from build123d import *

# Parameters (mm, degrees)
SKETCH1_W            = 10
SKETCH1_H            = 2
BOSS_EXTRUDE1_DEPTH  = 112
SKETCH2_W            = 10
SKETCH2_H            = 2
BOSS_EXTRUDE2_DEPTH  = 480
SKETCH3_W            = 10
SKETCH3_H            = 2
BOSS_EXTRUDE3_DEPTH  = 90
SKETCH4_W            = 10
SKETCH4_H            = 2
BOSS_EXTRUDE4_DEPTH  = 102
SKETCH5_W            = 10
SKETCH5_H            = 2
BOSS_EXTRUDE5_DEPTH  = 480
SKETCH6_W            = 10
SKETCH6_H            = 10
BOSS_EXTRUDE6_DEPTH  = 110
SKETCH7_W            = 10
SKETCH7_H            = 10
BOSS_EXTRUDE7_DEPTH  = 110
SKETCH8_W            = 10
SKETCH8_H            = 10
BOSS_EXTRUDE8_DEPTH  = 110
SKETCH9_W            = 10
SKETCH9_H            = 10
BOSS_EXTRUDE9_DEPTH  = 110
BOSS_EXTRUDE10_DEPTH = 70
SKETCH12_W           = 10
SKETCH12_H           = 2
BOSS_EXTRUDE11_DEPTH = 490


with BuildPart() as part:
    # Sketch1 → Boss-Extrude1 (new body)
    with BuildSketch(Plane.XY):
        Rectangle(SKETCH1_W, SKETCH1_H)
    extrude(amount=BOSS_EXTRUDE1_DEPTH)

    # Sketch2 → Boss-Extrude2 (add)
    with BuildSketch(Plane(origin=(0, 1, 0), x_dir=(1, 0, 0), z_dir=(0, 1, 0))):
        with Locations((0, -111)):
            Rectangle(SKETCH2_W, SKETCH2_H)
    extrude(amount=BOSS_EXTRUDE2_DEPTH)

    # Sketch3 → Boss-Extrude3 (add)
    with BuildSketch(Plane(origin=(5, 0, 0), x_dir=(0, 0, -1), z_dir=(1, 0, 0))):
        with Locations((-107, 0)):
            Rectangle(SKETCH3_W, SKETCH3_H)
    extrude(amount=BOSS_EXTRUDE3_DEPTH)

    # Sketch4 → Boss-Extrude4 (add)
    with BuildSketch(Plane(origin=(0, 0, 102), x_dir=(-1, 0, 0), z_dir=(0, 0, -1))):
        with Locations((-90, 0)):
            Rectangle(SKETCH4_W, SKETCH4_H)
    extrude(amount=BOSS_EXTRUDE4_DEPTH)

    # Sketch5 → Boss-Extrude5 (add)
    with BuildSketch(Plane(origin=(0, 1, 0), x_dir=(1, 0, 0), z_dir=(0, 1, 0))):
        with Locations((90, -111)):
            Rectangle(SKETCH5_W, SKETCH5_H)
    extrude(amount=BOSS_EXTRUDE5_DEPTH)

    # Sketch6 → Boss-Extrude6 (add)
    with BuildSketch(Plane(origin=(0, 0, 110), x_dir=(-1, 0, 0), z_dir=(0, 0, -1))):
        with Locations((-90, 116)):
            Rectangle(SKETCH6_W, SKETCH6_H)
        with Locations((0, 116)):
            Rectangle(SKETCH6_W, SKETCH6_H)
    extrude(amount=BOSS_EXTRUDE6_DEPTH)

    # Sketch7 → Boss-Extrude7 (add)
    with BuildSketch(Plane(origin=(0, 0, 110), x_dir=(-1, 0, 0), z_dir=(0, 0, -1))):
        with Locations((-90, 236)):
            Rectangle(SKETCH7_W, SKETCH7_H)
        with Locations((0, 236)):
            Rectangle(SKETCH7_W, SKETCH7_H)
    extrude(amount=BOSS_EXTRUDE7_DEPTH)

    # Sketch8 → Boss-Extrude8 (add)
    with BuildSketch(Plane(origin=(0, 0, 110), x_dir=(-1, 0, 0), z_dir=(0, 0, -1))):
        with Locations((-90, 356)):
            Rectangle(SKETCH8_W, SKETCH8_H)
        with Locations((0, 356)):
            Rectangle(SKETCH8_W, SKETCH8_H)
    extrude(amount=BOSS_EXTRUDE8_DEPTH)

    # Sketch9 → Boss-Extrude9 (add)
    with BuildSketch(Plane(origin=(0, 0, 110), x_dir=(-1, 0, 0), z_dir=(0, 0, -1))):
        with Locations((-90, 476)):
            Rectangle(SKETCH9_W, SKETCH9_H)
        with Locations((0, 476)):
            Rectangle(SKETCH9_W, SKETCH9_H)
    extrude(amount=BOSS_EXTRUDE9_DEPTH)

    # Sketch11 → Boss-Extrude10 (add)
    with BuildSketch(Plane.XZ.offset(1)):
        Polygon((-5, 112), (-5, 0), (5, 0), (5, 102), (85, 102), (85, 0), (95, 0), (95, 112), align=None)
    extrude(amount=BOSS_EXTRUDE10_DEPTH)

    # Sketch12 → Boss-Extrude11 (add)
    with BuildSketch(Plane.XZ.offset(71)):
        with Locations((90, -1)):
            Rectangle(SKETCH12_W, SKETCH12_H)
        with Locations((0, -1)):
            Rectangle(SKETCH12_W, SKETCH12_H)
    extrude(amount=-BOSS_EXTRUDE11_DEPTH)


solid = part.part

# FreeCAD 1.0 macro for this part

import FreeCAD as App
import Part
import Sketcher

V = App.Vector

doc = App.newDocument("Part")
params = doc.addObject("Spreadsheet::Sheet", "Params")
for row, (alias, value) in enumerate([
    ("sketch1_width", "10 mm"),
    ("sketch1_height", "2 mm"),
    ("pad1_length", "112 mm"),
    ("sketch2_width", "10 mm"),
    ("sketch2_height", "2 mm"),
    ("pad2_length", "480 mm"),
    ("sketch3_width", "2 mm"),
    ("sketch3_height", "10 mm"),
    ("pad3_length", "90 mm"),
    ("sketch4_width", "10 mm"),
    ("sketch4_height", "2 mm"),
    ("pad4_length", "102 mm"),
    ("sketch5_width", "10 mm"),
    ("sketch5_height", "2 mm"),
    ("pad5_length", "480 mm"),
    ("sketch6_width", "10 mm"),
    ("pad6_length", "110 mm"),
    ("sketch7_width", "10 mm"),
    ("pad7_length", "110 mm"),
    ("sketch8_width", "10 mm"),
    ("pad8_length", "110 mm"),
    ("sketch9_width", "10 mm"),
    ("pad9_length", "110 mm"),
    ("sketch10_width", "10 mm"),
    ("sketch10_width2", "80 mm"),
    ("sketch10_height", "112 mm"),
    ("sketch10_height2", "102 mm"),
    ("pad10_length", "70 mm"),
    ("sketch11_width", "10 mm"),
    ("sketch11_height", "2 mm"),
    ("pad11_length", "490 mm"),
], start=1):
    params.set(f"A{row}", alias)
    params.set(f"B{row}", "=" + value)
    params.setAlias(f"B{row}", alias)

body = doc.addObject("PartDesign::Body", "Body")

# Sketch on XY plane
sketch1 = doc.addObject("Sketcher::SketchObject", "Sketch")
body.addObject(sketch1)
sketch1.AttachmentSupport = (doc.XY_Plane, [""])
sketch1.MapMode = "FlatFace"
sketch1.addGeometry(Part.LineSegment(V(-5, 1, 0), V(-5, -1, 0)), False)
sketch1.addGeometry(Part.LineSegment(V(-5, -1, 0), V(5, -1, 0)), False)
sketch1.addGeometry(Part.LineSegment(V(5, -1, 0), V(5, 1, 0)), False)
sketch1.addGeometry(Part.LineSegment(V(5, 1, 0), V(-5, 1, 0)), False)
sketch1.addConstraint(Sketcher.Constraint("Coincident", 0, 2, 1, 1))
sketch1.addConstraint(Sketcher.Constraint("Coincident", 1, 2, 2, 1))
sketch1.addConstraint(Sketcher.Constraint("Coincident", 2, 2, 3, 1))
sketch1.addConstraint(Sketcher.Constraint("Coincident", 3, 2, 0, 1))
sketch1.addConstraint(Sketcher.Constraint("Vertical", 0))
sketch1.addConstraint(Sketcher.Constraint("Horizontal", 1))
sketch1.addConstraint(Sketcher.Constraint("Vertical", 2))
sketch1.addConstraint(Sketcher.Constraint("Horizontal", 3))
sketch1.addConstraint(Sketcher.Constraint("Symmetric", 0, 2, 2, 2, -1, 1))
sketch1.addConstraint(Sketcher.Constraint("DistanceX", 1, 1, 1, 2, 10.0))
sketch1.addConstraint(Sketcher.Constraint("DistanceY", 0, 2, 0, 1, 2.0))
sketch1.setExpression("Constraints[9]", "Params.sketch1_width")
sketch1.setExpression("Constraints[10]", "Params.sketch1_height")
pad1 = doc.addObject("PartDesign::Pad", "Pad")
body.addObject(pad1)
pad1.Profile = sketch1
pad1.setExpression("Length", "Params.pad1_length")

# Sketch on XZ plane
sketch2 = doc.addObject("Sketcher::SketchObject", "Sketch001")
body.addObject(sketch2)
sketch2.AttachmentSupport = (doc.XZ_Plane, [""])
sketch2.MapMode = "FlatFace"
sketch2.AttachmentOffset = App.Placement(V(0, 0, -1), App.Rotation())
sketch2.addGeometry(Part.LineSegment(V(-5, 110, 0), V(-5, 112, 0)), False)
sketch2.addGeometry(Part.LineSegment(V(-5, 112, 0), V(5, 112, 0)), False)
sketch2.addGeometry(Part.LineSegment(V(5, 112, 0), V(5, 110, 0)), False)
sketch2.addGeometry(Part.LineSegment(V(5, 110, 0), V(-5, 110, 0)), False)
sketch2.addConstraint(Sketcher.Constraint("Coincident", 0, 2, 1, 1))
sketch2.addConstraint(Sketcher.Constraint("Coincident", 1, 2, 2, 1))
sketch2.addConstraint(Sketcher.Constraint("Coincident", 2, 2, 3, 1))
sketch2.addConstraint(Sketcher.Constraint("Coincident", 3, 2, 0, 1))
sketch2.addConstraint(Sketcher.Constraint("Vertical", 0))
sketch2.addConstraint(Sketcher.Constraint("Horizontal", 1))
sketch2.addConstraint(Sketcher.Constraint("Vertical", 2))
sketch2.addConstraint(Sketcher.Constraint("Horizontal", 3))
sketch2.addConstraint(Sketcher.Constraint("DistanceX", 1, 1, 1, 2, 10.0))
sketch2.addConstraint(Sketcher.Constraint("DistanceY", 0, 1, 0, 2, 2.0))
sketch2.addConstraint(Sketcher.Constraint("DistanceX", 0, 2, -1, 1, 5.0))
sketch2.addConstraint(Sketcher.Constraint("DistanceY", -1, 1, 0, 2, 112.0))
sketch2.setExpression("Constraints[8]", "Params.sketch2_width")
sketch2.setExpression("Constraints[9]", "Params.sketch2_height")
pad2 = doc.addObject("PartDesign::Pad", "Pad001")
body.addObject(pad2)
pad2.Profile = sketch2
pad2.setExpression("Length", "Params.pad2_length")
pad2.Reversed = True

# Sketch on YZ plane
sketch3 = doc.addObject("Sketcher::SketchObject", "Sketch002")
body.addObject(sketch3)
sketch3.AttachmentSupport = (doc.YZ_Plane, [""])
sketch3.MapMode = "FlatFace"
sketch3.AttachmentOffset = App.Placement(V(0, 0, 5), App.Rotation())
sketch3.addGeometry(Part.LineSegment(V(1, 112, 0), V(-1, 112, 0)), False)
sketch3.addGeometry(Part.LineSegment(V(-1, 112, 0), V(-1, 102, 0)), False)
sketch3.addGeometry(Part.LineSegment(V(-1, 102, 0), V(1, 102, 0)), False)
sketch3.addGeometry(Part.LineSegment(V(1, 102, 0), V(1, 112, 0)), False)
sketch3.addConstraint(Sketcher.Constraint("Coincident", 0, 2, 1, 1))
sketch3.addConstraint(Sketcher.Constraint("Coincident", 1, 2, 2, 1))
sketch3.addConstraint(Sketcher.Constraint("Coincident", 2, 2, 3, 1))
sketch3.addConstraint(Sketcher.Constraint("Coincident", 3, 2, 0, 1))
sketch3.addConstraint(Sketcher.Constraint("Horizontal", 0))
sketch3.addConstraint(Sketcher.Constraint("Vertical", 1))
sketch3.addConstraint(Sketcher.Constraint("Horizontal", 2))
sketch3.addConstraint(Sketcher.Constraint("Vertical", 3))
sketch3.addConstraint(Sketcher.Constraint("DistanceX", 0, 2, 0, 1, 2.0))
sketch3.addConstraint(Sketcher.Constraint("DistanceY", 1, 2, 1, 1, 10.0))
sketch3.addConstraint(Sketcher.Constraint("DistanceX", 0, 2, -1, 1, 1.0))
sketch3.addConstraint(Sketcher.Constraint("DistanceY", -1, 1, 0, 2, 112.0))
sketch3.setExpression("Constraints[8]", "Params.sketch3_width")
sketch3.setExpression("Constraints[9]", "Params.sketch3_height")
pad3 = doc.addObject("PartDesign::Pad", "Pad002")
body.addObject(pad3)
pad3.Profile = sketch3
pad3.setExpression("Length", "Params.pad3_length")

# Sketch on XY plane
sketch4 = doc.addObject("Sketcher::SketchObject", "Sketch003")
body.addObject(sketch4)
sketch4.AttachmentSupport = (doc.XY_Plane, [""])
sketch4.MapMode = "FlatFace"
sketch4.AttachmentOffset = App.Placement(V(0, 0, 102), App.Rotation())
sketch4.addGeometry(Part.LineSegment(V(95, 1, 0), V(95, -1, 0)), False)
sketch4.addGeometry(Part.LineSegment(V(95, -1, 0), V(85, -1, 0)), False)
sketch4.addGeometry(Part.LineSegment(V(85, -1, 0), V(85, 1, 0)), False)
sketch4.addGeometry(Part.LineSegment(V(85, 1, 0), V(95, 1, 0)), False)
sketch4.addConstraint(Sketcher.Constraint("Coincident", 0, 2, 1, 1))
sketch4.addConstraint(Sketcher.Constraint("Coincident", 1, 2, 2, 1))
sketch4.addConstraint(Sketcher.Constraint("Coincident", 2, 2, 3, 1))
sketch4.addConstraint(Sketcher.Constraint("Coincident", 3, 2, 0, 1))
sketch4.addConstraint(Sketcher.Constraint("Vertical", 0))
sketch4.addConstraint(Sketcher.Constraint("Horizontal", 1))
sketch4.addConstraint(Sketcher.Constraint("Vertical", 2))
sketch4.addConstraint(Sketcher.Constraint("Horizontal", 3))
sketch4.addConstraint(Sketcher.Constraint("DistanceX", 1, 2, 1, 1, 10.0))
sketch4.addConstraint(Sketcher.Constraint("DistanceY", 0, 2, 0, 1, 2.0))
sketch4.addConstraint(Sketcher.Constraint("DistanceX", -1, 1, 0, 2, 95.0))
sketch4.addConstraint(Sketcher.Constraint("DistanceY", 0, 2, -1, 1, 1.0))
sketch4.setExpression("Constraints[8]", "Params.sketch4_width")
sketch4.setExpression("Constraints[9]", "Params.sketch4_height")
pad4 = doc.addObject("PartDesign::Pad", "Pad003")
body.addObject(pad4)
pad4.Profile = sketch4
pad4.setExpression("Length", "Params.pad4_length")
pad4.Reversed = True

# Sketch on XZ plane
sketch5 = doc.addObject("Sketcher::SketchObject", "Sketch004")
body.addObject(sketch5)
sketch5.AttachmentSupport = (doc.XZ_Plane, [""])
sketch5.MapMode = "FlatFace"
sketch5.AttachmentOffset = App.Placement(V(0, 0, -1), App.Rotation())
sketch5.addGeometry(Part.LineSegment(V(85, 110, 0), V(85, 112, 0)), False)
sketch5.addGeometry(Part.LineSegment(V(85, 112, 0), V(95, 112, 0)), False)
sketch5.addGeometry(Part.LineSegment(V(95, 112, 0), V(95, 110, 0)), False)
sketch5.addGeometry(Part.LineSegment(V(95, 110, 0), V(85, 110, 0)), False)
sketch5.addConstraint(Sketcher.Constraint("Coincident", 0, 2, 1, 1))
sketch5.addConstraint(Sketcher.Constraint("Coincident", 1, 2, 2, 1))
sketch5.addConstraint(Sketcher.Constraint("Coincident", 2, 2, 3, 1))
sketch5.addConstraint(Sketcher.Constraint("Coincident", 3, 2, 0, 1))
sketch5.addConstraint(Sketcher.Constraint("Vertical", 0))
sketch5.addConstraint(Sketcher.Constraint("Horizontal", 1))
sketch5.addConstraint(Sketcher.Constraint("Vertical", 2))
sketch5.addConstraint(Sketcher.Constraint("Horizontal", 3))
sketch5.addConstraint(Sketcher.Constraint("DistanceX", 1, 1, 1, 2, 10.0))
sketch5.addConstraint(Sketcher.Constraint("DistanceY", 0, 1, 0, 2, 2.0))
sketch5.addConstraint(Sketcher.Constraint("DistanceX", -1, 1, 0, 2, 85.0))
sketch5.addConstraint(Sketcher.Constraint("DistanceY", -1, 1, 0, 2, 112.0))
sketch5.setExpression("Constraints[8]", "Params.sketch5_width")
sketch5.setExpression("Constraints[9]", "Params.sketch5_height")
pad5 = doc.addObject("PartDesign::Pad", "Pad004")
body.addObject(pad5)
pad5.Profile = sketch5
pad5.setExpression("Length", "Params.pad5_length")
pad5.Reversed = True

# Sketch on XY plane
sketch6 = doc.addObject("Sketcher::SketchObject", "Sketch005")
body.addObject(sketch6)
sketch6.AttachmentSupport = (doc.XY_Plane, [""])
sketch6.MapMode = "FlatFace"
sketch6.AttachmentOffset = App.Placement(V(0, 0, 110), App.Rotation())
sketch6.addGeometry(Part.LineSegment(V(95, 121, 0), V(95, 111, 0)), False)
sketch6.addGeometry(Part.LineSegment(V(95, 111, 0), V(85, 111, 0)), False)
sketch6.addGeometry(Part.LineSegment(V(85, 111, 0), V(85, 121, 0)), False)
sketch6.addGeometry(Part.LineSegment(V(85, 121, 0), V(95, 121, 0)), False)
sketch6.addGeometry(Part.LineSegment(V(5, 121, 0), V(5, 111, 0)), False)
sketch6.addGeometry(Part.LineSegment(V(5, 111, 0), V(-5, 111, 0)), False)
sketch6.addGeometry(Part.LineSegment(V(-5, 111, 0), V(-5, 121, 0)), False)
sketch6.addGeometry(Part.LineSegment(V(-5, 121, 0), V(5, 121, 0)), False)
sketch6.addConstraint(Sketcher.Constraint("Coincident", 0, 2, 1, 1))
sketch6.addConstraint(Sketcher.Constraint("Coincident", 1, 2, 2, 1))
sketch6.addConstraint(Sketcher.Constraint("Coincident", 2, 2, 3, 1))
sketch6.addConstraint(Sketcher.Constraint("Coincident", 3, 2, 0, 1))
sketch6.addConstraint(Sketcher.Constraint("Coincident", 4, 2, 5, 1))
sketch6.addConstraint(Sketcher.Constraint("Coincident", 5, 2, 6, 1))
sketch6.addConstraint(Sketcher.Constraint("Coincident", 6, 2, 7, 1))
sketch6.addConstraint(Sketcher.Constraint("Coincident", 7, 2, 4, 1))
sketch6.addConstraint(Sketcher.Constraint("Vertical", 0))
sketch6.addConstraint(Sketcher.Constraint("Horizontal", 1))
sketch6.addConstraint(Sketcher.Constraint("Vertical", 2))
sketch6.addConstraint(Sketcher.Constraint("Horizontal", 3))
sketch6.addConstraint(Sketcher.Constraint("Vertical", 4))
sketch6.addConstraint(Sketcher.Constraint("Horizontal", 5))
sketch6.addConstraint(Sketcher.Constraint("Vertical", 6))
sketch6.addConstraint(Sketcher.Constraint("Horizontal", 7))
sketch6.addConstraint(Sketcher.Constraint("Horizontal", 1, 2, 4, 2))
sketch6.addConstraint(Sketcher.Constraint("Horizontal", 3, 2, 6, 2))
sketch6.addConstraint(Sketcher.Constraint("Equal", 3, 5))
sketch6.addConstraint(Sketcher.Constraint("Equal", 7, 0))
sketch6.addConstraint(Sketcher.Constraint("DistanceX", 1, 2, 1, 1, 10.0))
sketch6.addConstraint(Sketcher.Constraint("DistanceX", -1, 1, 0, 2, 95.0))
sketch6.addConstraint(Sketcher.Constraint("DistanceY", -1, 1, 0, 2, 111.0))
sketch6.addConstraint(Sketcher.Constraint("DistanceX", -1, 1, 4, 2, 5.0))
sketch6.setExpression("Constraints[20]", "Params.sketch6_width")
pad6 = doc.addObject("PartDesign::Pad", "Pad005")
body.addObject(pad6)
pad6.Profile = sketch6
pad6.setExpression("Length", "Params.pad6_length")
pad6.Reversed = True

# Sketch on XY plane
sketch7 = doc.addObject("Sketcher::SketchObject", "Sketch006")
body.addObject(sketch7)
sketch7.AttachmentSupport = (doc.XY_Plane, [""])
sketch7.MapMode = "FlatFace"
sketch7.AttachmentOffset = App.Placement(V(0, 0, 110), App.Rotation())
sketch7.addGeometry(Part.LineSegment(V(95, 241, 0), V(95, 231, 0)), False)
sketch7.addGeometry(Part.LineSegment(V(95, 231, 0), V(85, 231, 0)), False)
sketch7.addGeometry(Part.LineSegment(V(85, 231, 0), V(85, 241, 0)), False)
sketch7.addGeometry(Part.LineSegment(V(85, 241, 0), V(95, 241, 0)), False)
sketch7.addGeometry(Part.LineSegment(V(5, 241, 0), V(5, 231, 0)), False)
sketch7.addGeometry(Part.LineSegment(V(5, 231, 0), V(-5, 231, 0)), False)
sketch7.addGeometry(Part.LineSegment(V(-5, 231, 0), V(-5, 241, 0)), False)
sketch7.addGeometry(Part.LineSegment(V(-5, 241, 0), V(5, 241, 0)), False)
sketch7.addConstraint(Sketcher.Constraint("Coincident", 0, 2, 1, 1))
sketch7.addConstraint(Sketcher.Constraint("Coincident", 1, 2, 2, 1))
sketch7.addConstraint(Sketcher.Constraint("Coincident", 2, 2, 3, 1))
sketch7.addConstraint(Sketcher.Constraint("Coincident", 3, 2, 0, 1))
sketch7.addConstraint(Sketcher.Constraint("Coincident", 4, 2, 5, 1))
sketch7.addConstraint(Sketcher.Constraint("Coincident", 5, 2, 6, 1))
sketch7.addConstraint(Sketcher.Constraint("Coincident", 6, 2, 7, 1))
sketch7.addConstraint(Sketcher.Constraint("Coincident", 7, 2, 4, 1))
sketch7.addConstraint(Sketcher.Constraint("Vertical", 0))
sketch7.addConstraint(Sketcher.Constraint("Horizontal", 1))
sketch7.addConstraint(Sketcher.Constraint("Vertical", 2))
sketch7.addConstraint(Sketcher.Constraint("Horizontal", 3))
sketch7.addConstraint(Sketcher.Constraint("Vertical", 4))
sketch7.addConstraint(Sketcher.Constraint("Horizontal", 5))
sketch7.addConstraint(Sketcher.Constraint("Vertical", 6))
sketch7.addConstraint(Sketcher.Constraint("Horizontal", 7))
sketch7.addConstraint(Sketcher.Constraint("Horizontal", 1, 2, 4, 2))
sketch7.addConstraint(Sketcher.Constraint("Horizontal", 3, 2, 6, 2))
sketch7.addConstraint(Sketcher.Constraint("Equal", 3, 5))
sketch7.addConstraint(Sketcher.Constraint("Equal", 7, 0))
sketch7.addConstraint(Sketcher.Constraint("DistanceX", 1, 2, 1, 1, 10.0))
sketch7.addConstraint(Sketcher.Constraint("DistanceX", -1, 1, 0, 2, 95.0))
sketch7.addConstraint(Sketcher.Constraint("DistanceY", -1, 1, 0, 2, 231.0))
sketch7.addConstraint(Sketcher.Constraint("DistanceX", -1, 1, 4, 2, 5.0))
sketch7.setExpression("Constraints[20]", "Params.sketch7_width")
pad7 = doc.addObject("PartDesign::Pad", "Pad006")
body.addObject(pad7)
pad7.Profile = sketch7
pad7.setExpression("Length", "Params.pad7_length")
pad7.Reversed = True

# Sketch on XY plane
sketch8 = doc.addObject("Sketcher::SketchObject", "Sketch007")
body.addObject(sketch8)
sketch8.AttachmentSupport = (doc.XY_Plane, [""])
sketch8.MapMode = "FlatFace"
sketch8.AttachmentOffset = App.Placement(V(0, 0, 110), App.Rotation())
sketch8.addGeometry(Part.LineSegment(V(95, 361, 0), V(95, 351, 0)), False)
sketch8.addGeometry(Part.LineSegment(V(95, 351, 0), V(85, 351, 0)), False)
sketch8.addGeometry(Part.LineSegment(V(85, 351, 0), V(85, 361, 0)), False)
sketch8.addGeometry(Part.LineSegment(V(85, 361, 0), V(95, 361, 0)), False)
sketch8.addGeometry(Part.LineSegment(V(5, 361, 0), V(5, 351, 0)), False)
sketch8.addGeometry(Part.LineSegment(V(5, 351, 0), V(-5, 351, 0)), False)
sketch8.addGeometry(Part.LineSegment(V(-5, 351, 0), V(-5, 361, 0)), False)
sketch8.addGeometry(Part.LineSegment(V(-5, 361, 0), V(5, 361, 0)), False)
sketch8.addConstraint(Sketcher.Constraint("Coincident", 0, 2, 1, 1))
sketch8.addConstraint(Sketcher.Constraint("Coincident", 1, 2, 2, 1))
sketch8.addConstraint(Sketcher.Constraint("Coincident", 2, 2, 3, 1))
sketch8.addConstraint(Sketcher.Constraint("Coincident", 3, 2, 0, 1))
sketch8.addConstraint(Sketcher.Constraint("Coincident", 4, 2, 5, 1))
sketch8.addConstraint(Sketcher.Constraint("Coincident", 5, 2, 6, 1))
sketch8.addConstraint(Sketcher.Constraint("Coincident", 6, 2, 7, 1))
sketch8.addConstraint(Sketcher.Constraint("Coincident", 7, 2, 4, 1))
sketch8.addConstraint(Sketcher.Constraint("Vertical", 0))
sketch8.addConstraint(Sketcher.Constraint("Horizontal", 1))
sketch8.addConstraint(Sketcher.Constraint("Vertical", 2))
sketch8.addConstraint(Sketcher.Constraint("Horizontal", 3))
sketch8.addConstraint(Sketcher.Constraint("Vertical", 4))
sketch8.addConstraint(Sketcher.Constraint("Horizontal", 5))
sketch8.addConstraint(Sketcher.Constraint("Vertical", 6))
sketch8.addConstraint(Sketcher.Constraint("Horizontal", 7))
sketch8.addConstraint(Sketcher.Constraint("Horizontal", 1, 2, 4, 2))
sketch8.addConstraint(Sketcher.Constraint("Horizontal", 3, 2, 6, 2))
sketch8.addConstraint(Sketcher.Constraint("Equal", 3, 5))
sketch8.addConstraint(Sketcher.Constraint("Equal", 7, 0))
sketch8.addConstraint(Sketcher.Constraint("DistanceX", 1, 2, 1, 1, 10.0))
sketch8.addConstraint(Sketcher.Constraint("DistanceX", -1, 1, 0, 2, 95.0))
sketch8.addConstraint(Sketcher.Constraint("DistanceY", -1, 1, 0, 2, 351.0))
sketch8.addConstraint(Sketcher.Constraint("DistanceX", -1, 1, 4, 2, 5.0))
sketch8.setExpression("Constraints[20]", "Params.sketch8_width")
pad8 = doc.addObject("PartDesign::Pad", "Pad007")
body.addObject(pad8)
pad8.Profile = sketch8
pad8.setExpression("Length", "Params.pad8_length")
pad8.Reversed = True

# Sketch on XY plane
sketch9 = doc.addObject("Sketcher::SketchObject", "Sketch008")
body.addObject(sketch9)
sketch9.AttachmentSupport = (doc.XY_Plane, [""])
sketch9.MapMode = "FlatFace"
sketch9.AttachmentOffset = App.Placement(V(0, 0, 110), App.Rotation())
sketch9.addGeometry(Part.LineSegment(V(95, 481, 0), V(95, 471, 0)), False)
sketch9.addGeometry(Part.LineSegment(V(95, 471, 0), V(85, 471, 0)), False)
sketch9.addGeometry(Part.LineSegment(V(85, 471, 0), V(85, 481, 0)), False)
sketch9.addGeometry(Part.LineSegment(V(85, 481, 0), V(95, 481, 0)), False)
sketch9.addGeometry(Part.LineSegment(V(5, 481, 0), V(5, 471, 0)), False)
sketch9.addGeometry(Part.LineSegment(V(5, 471, 0), V(-5, 471, 0)), False)
sketch9.addGeometry(Part.LineSegment(V(-5, 471, 0), V(-5, 481, 0)), False)
sketch9.addGeometry(Part.LineSegment(V(-5, 481, 0), V(5, 481, 0)), False)
sketch9.addConstraint(Sketcher.Constraint("Coincident", 0, 2, 1, 1))
sketch9.addConstraint(Sketcher.Constraint("Coincident", 1, 2, 2, 1))
sketch9.addConstraint(Sketcher.Constraint("Coincident", 2, 2, 3, 1))
sketch9.addConstraint(Sketcher.Constraint("Coincident", 3, 2, 0, 1))
sketch9.addConstraint(Sketcher.Constraint("Coincident", 4, 2, 5, 1))
sketch9.addConstraint(Sketcher.Constraint("Coincident", 5, 2, 6, 1))
sketch9.addConstraint(Sketcher.Constraint("Coincident", 6, 2, 7, 1))
sketch9.addConstraint(Sketcher.Constraint("Coincident", 7, 2, 4, 1))
sketch9.addConstraint(Sketcher.Constraint("Vertical", 0))
sketch9.addConstraint(Sketcher.Constraint("Horizontal", 1))
sketch9.addConstraint(Sketcher.Constraint("Vertical", 2))
sketch9.addConstraint(Sketcher.Constraint("Horizontal", 3))
sketch9.addConstraint(Sketcher.Constraint("Vertical", 4))
sketch9.addConstraint(Sketcher.Constraint("Horizontal", 5))
sketch9.addConstraint(Sketcher.Constraint("Vertical", 6))
sketch9.addConstraint(Sketcher.Constraint("Horizontal", 7))
sketch9.addConstraint(Sketcher.Constraint("Horizontal", 1, 2, 4, 2))
sketch9.addConstraint(Sketcher.Constraint("Horizontal", 3, 2, 6, 2))
sketch9.addConstraint(Sketcher.Constraint("Equal", 3, 5))
sketch9.addConstraint(Sketcher.Constraint("Equal", 7, 0))
sketch9.addConstraint(Sketcher.Constraint("DistanceX", 1, 2, 1, 1, 10.0))
sketch9.addConstraint(Sketcher.Constraint("DistanceX", -1, 1, 0, 2, 95.0))
sketch9.addConstraint(Sketcher.Constraint("DistanceY", -1, 1, 0, 2, 471.0))
sketch9.addConstraint(Sketcher.Constraint("DistanceX", -1, 1, 4, 2, 5.0))
sketch9.setExpression("Constraints[20]", "Params.sketch9_width")
pad9 = doc.addObject("PartDesign::Pad", "Pad008")
body.addObject(pad9)
pad9.Profile = sketch9
pad9.setExpression("Length", "Params.pad9_length")
pad9.Reversed = True

# Sketch on XZ plane
sketch10 = doc.addObject("Sketcher::SketchObject", "Sketch009")
body.addObject(sketch10)
sketch10.AttachmentSupport = (doc.XZ_Plane, [""])
sketch10.MapMode = "FlatFace"
sketch10.AttachmentOffset = App.Placement(V(0, 0, 1), App.Rotation())
sketch10.addGeometry(Part.LineSegment(V(-5, 112, 0), V(-5, 0, 0)), False)
sketch10.addGeometry(Part.LineSegment(V(-5, 0, 0), V(5, 0, 0)), False)
sketch10.addGeometry(Part.LineSegment(V(5, 0, 0), V(5, 102, 0)), False)
sketch10.addGeometry(Part.LineSegment(V(5, 102, 0), V(85, 102, 0)), False)
sketch10.addGeometry(Part.LineSegment(V(85, 102, 0), V(85, 0, 0)), False)
sketch10.addGeometry(Part.LineSegment(V(85, 0, 0), V(95, 0, 0)), False)
sketch10.addGeometry(Part.LineSegment(V(95, 0, 0), V(95, 112, 0)), False)
sketch10.addGeometry(Part.LineSegment(V(95, 112, 0), V(-5, 112, 0)), False)
sketch10.addConstraint(Sketcher.Constraint("Coincident", 0, 2, 1, 1))
sketch10.addConstraint(Sketcher.Constraint("Coincident", 1, 2, 2, 1))
sketch10.addConstraint(Sketcher.Constraint("Coincident", 2, 2, 3, 1))
sketch10.addConstraint(Sketcher.Constraint("Coincident", 3, 2, 4, 1))
sketch10.addConstraint(Sketcher.Constraint("Coincident", 4, 2, 5, 1))
sketch10.addConstraint(Sketcher.Constraint("Coincident", 5, 2, 6, 1))
sketch10.addConstraint(Sketcher.Constraint("Coincident", 6, 2, 7, 1))
sketch10.addConstraint(Sketcher.Constraint("Coincident", 7, 2, 0, 1))
sketch10.addConstraint(Sketcher.Constraint("Vertical", 0))
sketch10.addConstraint(Sketcher.Constraint("Horizontal", 1))
sketch10.addConstraint(Sketcher.Constraint("Vertical", 2))
sketch10.addConstraint(Sketcher.Constraint("Horizontal", 3))
sketch10.addConstraint(Sketcher.Constraint("Vertical", 4))
sketch10.addConstraint(Sketcher.Constraint("Horizontal", 5))
sketch10.addConstraint(Sketcher.Constraint("Vertical", 6))
sketch10.addConstraint(Sketcher.Constraint("Horizontal", 7))
sketch10.addConstraint(Sketcher.Constraint("Symmetric", 0, 2, 1, 2, -1, 1))
sketch10.addConstraint(Sketcher.Constraint("PointOnObject", 4, 2, -1))
sketch10.addConstraint(Sketcher.Constraint("Equal", 1, 5))
sketch10.addConstraint(Sketcher.Constraint("DistanceX", 1, 1, 1, 2, 10.0))
sketch10.addConstraint(Sketcher.Constraint("DistanceX", 3, 1, 3, 2, 80.0))
sketch10.addConstraint(Sketcher.Constraint("DistanceY", 0, 2, 0, 1, 112.0))
sketch10.addConstraint(Sketcher.Constraint("DistanceY", 2, 1, 2, 2, 102.0))
sketch10.setExpression("Constraints[19]", "Params.sketch10_width")
sketch10.setExpression("Constraints[20]", "Params.sketch10_width2")
sketch10.setExpression("Constraints[21]", "Params.sketch10_height")
sketch10.setExpression("Constraints[22]", "Params.sketch10_height2")
pad10 = doc.addObject("PartDesign::Pad", "Pad009")
body.addObject(pad10)
pad10.Profile = sketch10
pad10.setExpression("Length", "Params.pad10_length")

# Sketch on XZ plane
sketch11 = doc.addObject("Sketcher::SketchObject", "Sketch010")
body.addObject(sketch11)
sketch11.AttachmentSupport = (doc.XZ_Plane, [""])
sketch11.MapMode = "FlatFace"
sketch11.AttachmentOffset = App.Placement(V(0, 0, 71), App.Rotation())
sketch11.addGeometry(Part.LineSegment(V(85, 0, 0), V(85, -2, 0)), False)
sketch11.addGeometry(Part.LineSegment(V(85, -2, 0), V(95, -2, 0)), False)
sketch11.addGeometry(Part.LineSegment(V(95, -2, 0), V(95, 0, 0)), False)
sketch11.addGeometry(Part.LineSegment(V(95, 0, 0), V(85, 0, 0)), False)
sketch11.addGeometry(Part.LineSegment(V(-5, 0, 0), V(-5, -2, 0)), False)
sketch11.addGeometry(Part.LineSegment(V(-5, -2, 0), V(5, -2, 0)), False)
sketch11.addGeometry(Part.LineSegment(V(5, -2, 0), V(5, 0, 0)), False)
sketch11.addGeometry(Part.LineSegment(V(5, 0, 0), V(-5, 0, 0)), False)
sketch11.addConstraint(Sketcher.Constraint("Coincident", 0, 2, 1, 1))
sketch11.addConstraint(Sketcher.Constraint("Coincident", 1, 2, 2, 1))
sketch11.addConstraint(Sketcher.Constraint("Coincident", 2, 2, 3, 1))
sketch11.addConstraint(Sketcher.Constraint("Coincident", 3, 2, 0, 1))
sketch11.addConstraint(Sketcher.Constraint("Coincident", 4, 2, 5, 1))
sketch11.addConstraint(Sketcher.Constraint("Coincident", 5, 2, 6, 1))
sketch11.addConstraint(Sketcher.Constraint("Coincident", 6, 2, 7, 1))
sketch11.addConstraint(Sketcher.Constraint("Coincident", 7, 2, 4, 1))
sketch11.addConstraint(Sketcher.Constraint("Vertical", 0))
sketch11.addConstraint(Sketcher.Constraint("Horizontal", 1))
sketch11.addConstraint(Sketcher.Constraint("Vertical", 2))
sketch11.addConstraint(Sketcher.Constraint("Horizontal", 3))
sketch11.addConstraint(Sketcher.Constraint("Vertical", 4))
sketch11.addConstraint(Sketcher.Constraint("Horizontal", 5))
sketch11.addConstraint(Sketcher.Constraint("Vertical", 6))
sketch11.addConstraint(Sketcher.Constraint("Horizontal", 7))
sketch11.addConstraint(Sketcher.Constraint("Symmetric", 6, 2, 7, 2, -1, 1))
sketch11.addConstraint(Sketcher.Constraint("PointOnObject", 2, 2, -1))
sketch11.addConstraint(Sketcher.Constraint("Horizontal", 1, 2, 4, 2))
sketch11.addConstraint(Sketcher.Constraint("Equal", 3, 5))
sketch11.addConstraint(Sketcher.Constraint("DistanceX", 1, 1, 1, 2, 10.0))
sketch11.addConstraint(Sketcher.Constraint("DistanceY", 0, 2, 0, 1, 2.0))
sketch11.addConstraint(Sketcher.Constraint("DistanceX", -1, 1, 0, 2, 85.0))
sketch11.setExpression("Constraints[20]", "Params.sketch11_width")
sketch11.setExpression("Constraints[21]", "Params.sketch11_height")
pad11 = doc.addObject("PartDesign::Pad", "Pad010")
body.addObject(pad11)
pad11.Profile = sketch11
pad11.setExpression("Length", "Params.pad11_length")
pad11.Reversed = True

doc.recompute()
